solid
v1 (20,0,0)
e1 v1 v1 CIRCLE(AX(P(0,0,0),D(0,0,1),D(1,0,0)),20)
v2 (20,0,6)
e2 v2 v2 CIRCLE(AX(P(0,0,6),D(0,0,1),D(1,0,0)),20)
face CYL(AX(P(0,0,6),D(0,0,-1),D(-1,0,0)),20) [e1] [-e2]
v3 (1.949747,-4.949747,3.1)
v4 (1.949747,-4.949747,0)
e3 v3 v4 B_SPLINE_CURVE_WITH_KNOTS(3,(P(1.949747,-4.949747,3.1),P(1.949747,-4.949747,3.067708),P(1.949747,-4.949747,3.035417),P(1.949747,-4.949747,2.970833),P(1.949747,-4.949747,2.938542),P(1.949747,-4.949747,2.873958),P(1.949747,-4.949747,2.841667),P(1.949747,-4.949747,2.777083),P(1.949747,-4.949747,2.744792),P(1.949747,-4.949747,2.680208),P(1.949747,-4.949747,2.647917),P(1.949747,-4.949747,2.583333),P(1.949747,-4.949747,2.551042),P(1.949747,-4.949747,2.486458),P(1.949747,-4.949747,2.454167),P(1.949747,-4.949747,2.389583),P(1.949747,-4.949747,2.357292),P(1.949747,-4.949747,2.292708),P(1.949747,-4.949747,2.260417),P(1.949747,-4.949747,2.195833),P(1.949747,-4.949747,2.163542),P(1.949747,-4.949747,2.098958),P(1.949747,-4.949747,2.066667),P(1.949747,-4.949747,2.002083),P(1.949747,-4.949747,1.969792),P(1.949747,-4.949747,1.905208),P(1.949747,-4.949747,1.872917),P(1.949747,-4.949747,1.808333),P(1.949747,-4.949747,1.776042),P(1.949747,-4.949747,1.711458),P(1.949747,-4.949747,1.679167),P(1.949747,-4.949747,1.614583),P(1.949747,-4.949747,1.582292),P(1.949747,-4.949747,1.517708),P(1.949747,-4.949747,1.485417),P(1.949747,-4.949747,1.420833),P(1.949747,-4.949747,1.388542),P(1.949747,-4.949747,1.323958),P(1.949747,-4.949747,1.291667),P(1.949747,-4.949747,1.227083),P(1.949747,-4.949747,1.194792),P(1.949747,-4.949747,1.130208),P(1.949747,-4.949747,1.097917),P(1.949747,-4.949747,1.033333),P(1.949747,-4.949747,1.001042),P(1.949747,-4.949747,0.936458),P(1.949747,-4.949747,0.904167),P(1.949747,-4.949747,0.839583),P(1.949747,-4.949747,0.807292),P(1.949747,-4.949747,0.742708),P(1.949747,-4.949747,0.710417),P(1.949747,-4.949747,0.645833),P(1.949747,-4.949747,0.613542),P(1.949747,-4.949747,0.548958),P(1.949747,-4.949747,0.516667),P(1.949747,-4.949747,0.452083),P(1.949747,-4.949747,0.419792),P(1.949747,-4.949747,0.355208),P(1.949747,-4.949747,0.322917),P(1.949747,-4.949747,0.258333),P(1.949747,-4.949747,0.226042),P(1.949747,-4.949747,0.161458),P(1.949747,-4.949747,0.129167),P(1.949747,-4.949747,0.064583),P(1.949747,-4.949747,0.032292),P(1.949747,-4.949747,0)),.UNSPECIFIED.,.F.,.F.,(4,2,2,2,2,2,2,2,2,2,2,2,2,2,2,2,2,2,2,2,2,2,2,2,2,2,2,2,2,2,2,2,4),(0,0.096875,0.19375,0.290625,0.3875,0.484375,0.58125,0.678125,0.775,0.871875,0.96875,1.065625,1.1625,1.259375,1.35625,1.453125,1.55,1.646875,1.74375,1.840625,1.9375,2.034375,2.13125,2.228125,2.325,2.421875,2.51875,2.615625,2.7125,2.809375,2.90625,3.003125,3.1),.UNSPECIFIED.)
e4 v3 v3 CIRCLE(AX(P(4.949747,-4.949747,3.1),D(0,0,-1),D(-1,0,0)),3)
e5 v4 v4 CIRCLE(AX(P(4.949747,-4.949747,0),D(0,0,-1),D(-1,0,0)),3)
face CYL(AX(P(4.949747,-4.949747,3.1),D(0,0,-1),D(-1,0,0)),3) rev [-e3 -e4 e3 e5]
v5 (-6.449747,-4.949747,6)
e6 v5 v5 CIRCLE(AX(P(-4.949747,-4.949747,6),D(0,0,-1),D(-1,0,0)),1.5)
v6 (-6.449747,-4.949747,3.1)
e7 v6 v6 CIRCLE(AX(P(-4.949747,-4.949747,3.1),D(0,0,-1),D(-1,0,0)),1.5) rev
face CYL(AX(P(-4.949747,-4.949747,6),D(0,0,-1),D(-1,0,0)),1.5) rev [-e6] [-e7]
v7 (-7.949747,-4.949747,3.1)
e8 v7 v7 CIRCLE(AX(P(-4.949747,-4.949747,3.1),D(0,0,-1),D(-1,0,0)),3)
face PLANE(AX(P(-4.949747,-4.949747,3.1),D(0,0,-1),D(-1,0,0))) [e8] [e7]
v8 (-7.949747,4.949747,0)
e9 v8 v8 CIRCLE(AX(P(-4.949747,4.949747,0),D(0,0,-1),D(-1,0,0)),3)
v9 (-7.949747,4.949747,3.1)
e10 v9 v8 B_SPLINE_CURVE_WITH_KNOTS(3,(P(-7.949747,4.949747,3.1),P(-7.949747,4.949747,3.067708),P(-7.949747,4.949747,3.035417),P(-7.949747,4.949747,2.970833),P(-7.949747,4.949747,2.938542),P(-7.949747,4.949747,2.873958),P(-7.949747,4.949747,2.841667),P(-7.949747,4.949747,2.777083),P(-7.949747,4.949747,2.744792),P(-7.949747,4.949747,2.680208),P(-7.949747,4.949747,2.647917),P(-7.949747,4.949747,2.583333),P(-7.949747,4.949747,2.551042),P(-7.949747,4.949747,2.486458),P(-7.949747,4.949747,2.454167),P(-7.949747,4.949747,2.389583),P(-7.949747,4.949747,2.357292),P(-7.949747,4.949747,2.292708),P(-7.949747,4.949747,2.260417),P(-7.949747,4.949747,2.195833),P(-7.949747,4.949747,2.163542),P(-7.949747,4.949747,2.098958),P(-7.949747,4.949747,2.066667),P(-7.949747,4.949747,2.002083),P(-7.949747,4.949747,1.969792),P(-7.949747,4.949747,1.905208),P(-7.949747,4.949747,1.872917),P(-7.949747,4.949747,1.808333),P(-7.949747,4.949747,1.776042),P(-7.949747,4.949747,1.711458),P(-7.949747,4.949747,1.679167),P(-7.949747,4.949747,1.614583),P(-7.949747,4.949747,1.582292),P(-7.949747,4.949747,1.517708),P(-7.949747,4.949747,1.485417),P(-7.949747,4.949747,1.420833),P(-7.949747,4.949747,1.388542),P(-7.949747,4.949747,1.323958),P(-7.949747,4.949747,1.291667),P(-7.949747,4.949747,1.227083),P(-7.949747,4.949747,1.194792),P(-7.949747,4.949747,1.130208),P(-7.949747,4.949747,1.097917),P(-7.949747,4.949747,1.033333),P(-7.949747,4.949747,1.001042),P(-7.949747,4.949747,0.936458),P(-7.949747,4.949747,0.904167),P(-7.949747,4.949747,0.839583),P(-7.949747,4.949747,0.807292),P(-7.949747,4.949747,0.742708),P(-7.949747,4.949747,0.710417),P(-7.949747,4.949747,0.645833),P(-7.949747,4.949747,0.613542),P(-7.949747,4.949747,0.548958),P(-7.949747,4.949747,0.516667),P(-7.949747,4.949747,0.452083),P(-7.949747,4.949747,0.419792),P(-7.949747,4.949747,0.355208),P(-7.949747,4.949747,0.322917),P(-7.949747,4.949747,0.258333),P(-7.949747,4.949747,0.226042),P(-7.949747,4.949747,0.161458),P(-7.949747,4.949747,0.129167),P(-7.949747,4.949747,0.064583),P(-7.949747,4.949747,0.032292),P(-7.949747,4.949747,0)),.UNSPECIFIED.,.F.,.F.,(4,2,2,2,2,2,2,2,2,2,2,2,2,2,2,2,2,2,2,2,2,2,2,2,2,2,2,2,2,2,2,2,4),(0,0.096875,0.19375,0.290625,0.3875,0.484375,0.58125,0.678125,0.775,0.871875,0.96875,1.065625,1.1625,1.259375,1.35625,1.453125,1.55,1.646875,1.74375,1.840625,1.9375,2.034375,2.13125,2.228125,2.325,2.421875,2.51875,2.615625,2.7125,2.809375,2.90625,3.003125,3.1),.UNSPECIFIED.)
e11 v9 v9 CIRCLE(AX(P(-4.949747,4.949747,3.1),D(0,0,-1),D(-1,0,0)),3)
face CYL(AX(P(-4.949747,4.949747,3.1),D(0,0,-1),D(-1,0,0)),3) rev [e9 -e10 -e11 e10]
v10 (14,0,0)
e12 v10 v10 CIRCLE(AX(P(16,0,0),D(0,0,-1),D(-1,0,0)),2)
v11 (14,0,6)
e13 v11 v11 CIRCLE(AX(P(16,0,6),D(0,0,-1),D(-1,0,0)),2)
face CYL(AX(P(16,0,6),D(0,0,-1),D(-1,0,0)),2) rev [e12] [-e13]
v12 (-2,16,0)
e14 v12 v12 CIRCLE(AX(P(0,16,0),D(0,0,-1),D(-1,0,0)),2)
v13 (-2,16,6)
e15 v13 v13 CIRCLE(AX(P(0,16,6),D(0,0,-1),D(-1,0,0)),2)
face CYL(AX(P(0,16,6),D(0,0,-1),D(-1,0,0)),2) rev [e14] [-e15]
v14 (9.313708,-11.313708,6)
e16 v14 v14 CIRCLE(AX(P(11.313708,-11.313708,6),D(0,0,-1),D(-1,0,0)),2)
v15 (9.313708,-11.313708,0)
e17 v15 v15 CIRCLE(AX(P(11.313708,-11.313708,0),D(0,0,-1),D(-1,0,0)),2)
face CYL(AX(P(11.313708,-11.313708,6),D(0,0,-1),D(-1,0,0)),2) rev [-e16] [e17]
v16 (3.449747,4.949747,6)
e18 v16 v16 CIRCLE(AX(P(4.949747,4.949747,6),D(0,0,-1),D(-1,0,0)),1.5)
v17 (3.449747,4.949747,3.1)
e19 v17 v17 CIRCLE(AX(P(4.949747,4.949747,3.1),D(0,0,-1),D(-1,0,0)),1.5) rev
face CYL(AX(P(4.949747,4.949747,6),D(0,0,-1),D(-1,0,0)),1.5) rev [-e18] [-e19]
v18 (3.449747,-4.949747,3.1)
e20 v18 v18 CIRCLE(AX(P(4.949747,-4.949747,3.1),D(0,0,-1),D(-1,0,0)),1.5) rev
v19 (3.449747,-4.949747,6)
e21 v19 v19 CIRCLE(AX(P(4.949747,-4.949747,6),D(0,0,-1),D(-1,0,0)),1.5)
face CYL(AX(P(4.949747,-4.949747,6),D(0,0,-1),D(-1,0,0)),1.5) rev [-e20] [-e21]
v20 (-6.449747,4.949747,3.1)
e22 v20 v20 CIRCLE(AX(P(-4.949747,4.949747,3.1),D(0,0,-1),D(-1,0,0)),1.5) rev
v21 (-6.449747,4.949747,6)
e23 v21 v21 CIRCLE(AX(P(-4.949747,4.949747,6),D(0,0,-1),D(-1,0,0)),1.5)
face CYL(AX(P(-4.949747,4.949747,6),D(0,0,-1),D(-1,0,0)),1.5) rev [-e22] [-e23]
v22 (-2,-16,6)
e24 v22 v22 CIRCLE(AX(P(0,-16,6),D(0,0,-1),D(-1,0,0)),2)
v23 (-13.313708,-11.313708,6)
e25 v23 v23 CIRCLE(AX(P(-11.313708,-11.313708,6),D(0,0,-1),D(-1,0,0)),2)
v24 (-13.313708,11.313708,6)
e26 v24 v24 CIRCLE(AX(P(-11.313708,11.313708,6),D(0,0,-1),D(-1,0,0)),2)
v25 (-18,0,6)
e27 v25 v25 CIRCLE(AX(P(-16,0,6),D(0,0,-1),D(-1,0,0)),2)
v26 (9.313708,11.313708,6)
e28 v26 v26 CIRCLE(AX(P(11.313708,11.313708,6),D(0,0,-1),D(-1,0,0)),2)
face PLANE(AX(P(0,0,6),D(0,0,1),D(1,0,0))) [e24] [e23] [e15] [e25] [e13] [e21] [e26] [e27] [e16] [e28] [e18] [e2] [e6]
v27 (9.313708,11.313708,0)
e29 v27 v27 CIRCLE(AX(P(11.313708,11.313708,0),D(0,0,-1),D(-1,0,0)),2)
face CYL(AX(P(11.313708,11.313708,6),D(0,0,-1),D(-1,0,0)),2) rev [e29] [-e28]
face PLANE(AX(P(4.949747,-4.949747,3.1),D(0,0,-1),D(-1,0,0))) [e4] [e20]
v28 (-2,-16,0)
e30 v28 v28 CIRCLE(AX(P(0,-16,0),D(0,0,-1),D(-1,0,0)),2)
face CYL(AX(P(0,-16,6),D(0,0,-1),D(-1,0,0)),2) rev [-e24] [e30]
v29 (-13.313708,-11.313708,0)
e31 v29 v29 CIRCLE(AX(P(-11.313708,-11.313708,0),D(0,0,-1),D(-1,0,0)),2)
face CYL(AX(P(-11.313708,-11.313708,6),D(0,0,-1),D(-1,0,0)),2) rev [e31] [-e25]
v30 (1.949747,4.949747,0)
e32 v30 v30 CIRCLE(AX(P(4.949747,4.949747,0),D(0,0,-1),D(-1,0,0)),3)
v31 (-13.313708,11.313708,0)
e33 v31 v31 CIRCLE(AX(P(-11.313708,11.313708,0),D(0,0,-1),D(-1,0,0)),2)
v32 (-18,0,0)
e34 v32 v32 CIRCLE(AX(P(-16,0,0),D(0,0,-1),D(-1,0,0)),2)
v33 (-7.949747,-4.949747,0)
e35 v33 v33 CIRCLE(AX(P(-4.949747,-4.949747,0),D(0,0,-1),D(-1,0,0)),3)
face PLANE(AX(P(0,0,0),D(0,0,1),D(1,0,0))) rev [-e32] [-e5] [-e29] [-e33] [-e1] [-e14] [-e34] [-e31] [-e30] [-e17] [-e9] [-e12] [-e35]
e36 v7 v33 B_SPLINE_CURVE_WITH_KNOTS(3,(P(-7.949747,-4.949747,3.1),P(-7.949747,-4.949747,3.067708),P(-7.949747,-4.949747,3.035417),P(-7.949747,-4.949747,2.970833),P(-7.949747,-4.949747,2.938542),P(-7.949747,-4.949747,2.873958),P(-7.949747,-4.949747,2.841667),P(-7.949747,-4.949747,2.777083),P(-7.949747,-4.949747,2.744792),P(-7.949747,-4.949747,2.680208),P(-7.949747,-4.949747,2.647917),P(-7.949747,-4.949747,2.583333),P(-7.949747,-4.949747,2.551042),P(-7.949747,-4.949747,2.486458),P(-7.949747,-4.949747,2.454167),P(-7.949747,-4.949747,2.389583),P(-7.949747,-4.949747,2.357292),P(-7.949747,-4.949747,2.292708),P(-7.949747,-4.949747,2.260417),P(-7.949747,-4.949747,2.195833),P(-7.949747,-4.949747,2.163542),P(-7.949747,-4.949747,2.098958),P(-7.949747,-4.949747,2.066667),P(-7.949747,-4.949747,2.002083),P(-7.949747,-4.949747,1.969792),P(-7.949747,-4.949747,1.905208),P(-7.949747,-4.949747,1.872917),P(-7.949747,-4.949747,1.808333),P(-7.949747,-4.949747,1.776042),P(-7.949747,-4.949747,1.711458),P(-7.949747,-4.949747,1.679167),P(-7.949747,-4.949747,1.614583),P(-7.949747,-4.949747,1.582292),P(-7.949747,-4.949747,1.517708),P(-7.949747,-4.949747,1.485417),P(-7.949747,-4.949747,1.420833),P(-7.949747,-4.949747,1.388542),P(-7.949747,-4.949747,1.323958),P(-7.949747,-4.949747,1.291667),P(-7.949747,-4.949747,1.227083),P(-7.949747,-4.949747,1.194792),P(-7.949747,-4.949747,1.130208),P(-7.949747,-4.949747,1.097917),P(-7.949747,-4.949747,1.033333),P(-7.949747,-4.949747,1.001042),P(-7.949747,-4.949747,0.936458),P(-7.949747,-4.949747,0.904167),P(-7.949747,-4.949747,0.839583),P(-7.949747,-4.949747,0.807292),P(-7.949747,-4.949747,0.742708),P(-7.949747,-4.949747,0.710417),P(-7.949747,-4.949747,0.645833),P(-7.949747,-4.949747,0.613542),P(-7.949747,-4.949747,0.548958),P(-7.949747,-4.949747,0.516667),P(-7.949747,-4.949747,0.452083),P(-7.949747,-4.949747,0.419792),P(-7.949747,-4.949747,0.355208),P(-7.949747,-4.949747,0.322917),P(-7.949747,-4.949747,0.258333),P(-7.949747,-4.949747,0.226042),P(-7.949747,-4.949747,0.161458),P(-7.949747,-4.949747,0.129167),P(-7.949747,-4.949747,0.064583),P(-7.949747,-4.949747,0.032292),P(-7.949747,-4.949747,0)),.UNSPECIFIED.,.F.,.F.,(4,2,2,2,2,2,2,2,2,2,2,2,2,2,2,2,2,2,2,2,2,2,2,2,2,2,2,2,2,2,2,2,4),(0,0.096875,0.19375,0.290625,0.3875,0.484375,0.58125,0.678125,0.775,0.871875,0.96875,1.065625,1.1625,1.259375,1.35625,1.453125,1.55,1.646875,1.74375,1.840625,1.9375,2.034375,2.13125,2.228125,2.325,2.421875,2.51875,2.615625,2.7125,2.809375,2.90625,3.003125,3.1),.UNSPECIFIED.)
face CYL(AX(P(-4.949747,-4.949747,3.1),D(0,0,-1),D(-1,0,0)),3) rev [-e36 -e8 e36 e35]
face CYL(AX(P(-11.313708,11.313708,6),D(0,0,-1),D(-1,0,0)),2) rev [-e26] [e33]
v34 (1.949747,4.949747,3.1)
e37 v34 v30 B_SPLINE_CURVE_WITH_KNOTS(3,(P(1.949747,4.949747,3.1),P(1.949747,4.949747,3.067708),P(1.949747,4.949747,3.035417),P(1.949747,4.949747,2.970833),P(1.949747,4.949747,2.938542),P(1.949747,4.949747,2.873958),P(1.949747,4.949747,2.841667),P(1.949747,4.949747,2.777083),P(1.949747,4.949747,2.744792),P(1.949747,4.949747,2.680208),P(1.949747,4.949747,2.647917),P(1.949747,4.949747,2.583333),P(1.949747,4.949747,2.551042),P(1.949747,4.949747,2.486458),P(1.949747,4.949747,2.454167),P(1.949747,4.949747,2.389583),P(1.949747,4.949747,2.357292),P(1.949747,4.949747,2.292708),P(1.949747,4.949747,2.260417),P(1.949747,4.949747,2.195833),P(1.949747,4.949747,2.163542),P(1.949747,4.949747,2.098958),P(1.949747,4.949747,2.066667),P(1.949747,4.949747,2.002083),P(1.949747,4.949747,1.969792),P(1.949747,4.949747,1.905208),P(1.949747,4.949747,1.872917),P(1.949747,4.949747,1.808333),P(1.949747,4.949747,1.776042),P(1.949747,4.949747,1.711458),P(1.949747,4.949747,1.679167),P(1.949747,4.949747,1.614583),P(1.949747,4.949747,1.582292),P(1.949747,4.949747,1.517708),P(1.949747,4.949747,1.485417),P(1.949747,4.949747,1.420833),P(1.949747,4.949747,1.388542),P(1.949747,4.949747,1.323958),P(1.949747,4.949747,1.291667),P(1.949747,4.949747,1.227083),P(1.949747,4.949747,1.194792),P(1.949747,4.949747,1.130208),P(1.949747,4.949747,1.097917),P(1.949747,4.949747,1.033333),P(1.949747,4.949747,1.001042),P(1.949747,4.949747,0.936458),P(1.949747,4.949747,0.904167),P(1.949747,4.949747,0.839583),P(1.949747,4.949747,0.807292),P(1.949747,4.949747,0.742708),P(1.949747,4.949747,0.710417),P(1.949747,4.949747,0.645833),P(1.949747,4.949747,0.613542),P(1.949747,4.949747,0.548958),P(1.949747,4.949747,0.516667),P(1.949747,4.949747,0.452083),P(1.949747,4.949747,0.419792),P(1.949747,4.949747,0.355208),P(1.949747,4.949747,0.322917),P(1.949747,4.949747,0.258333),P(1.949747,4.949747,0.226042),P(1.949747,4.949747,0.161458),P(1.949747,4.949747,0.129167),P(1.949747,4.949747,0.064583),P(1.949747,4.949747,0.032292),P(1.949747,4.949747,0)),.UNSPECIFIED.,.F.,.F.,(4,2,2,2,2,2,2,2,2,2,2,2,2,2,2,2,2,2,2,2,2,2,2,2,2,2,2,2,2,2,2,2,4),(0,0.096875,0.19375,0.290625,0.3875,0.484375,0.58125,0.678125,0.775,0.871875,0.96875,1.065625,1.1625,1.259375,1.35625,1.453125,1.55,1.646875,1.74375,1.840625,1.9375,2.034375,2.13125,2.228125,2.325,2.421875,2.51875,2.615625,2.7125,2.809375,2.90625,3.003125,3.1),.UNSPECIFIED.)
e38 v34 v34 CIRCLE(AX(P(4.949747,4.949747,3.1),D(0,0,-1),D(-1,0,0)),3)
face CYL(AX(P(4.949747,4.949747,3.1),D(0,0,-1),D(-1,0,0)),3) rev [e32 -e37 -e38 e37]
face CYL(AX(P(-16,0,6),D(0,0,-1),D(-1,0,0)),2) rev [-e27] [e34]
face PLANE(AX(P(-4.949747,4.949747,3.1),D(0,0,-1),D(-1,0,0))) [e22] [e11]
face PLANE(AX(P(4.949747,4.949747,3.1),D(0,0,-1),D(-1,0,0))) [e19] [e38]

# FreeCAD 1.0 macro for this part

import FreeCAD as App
import Part
import Sketcher
Q = App.Units.Quantity

doc = App.newDocument("Part")
params = doc.addObject("Spreadsheet::Sheet", "Params")
for row, (alias, value) in enumerate([
    ("sketch1_diameter", "40 mm"),
    ("pad1_length", "6 mm"),
    ("sketch2_diameter", "4 mm"),
    ("sketch2_diameter2", "3 mm"),
    ("pocket1_length", "6 mm"),
    ("sketch3_diameter", "6 mm"),
    ("pocket2_length", "3.1 mm"),
], start=1):
    params.set(f"A{row}", alias)
    params.set(f"B{row}", "=" + value)
    params.setAlias(f"B{row}", alias)

body = doc.addObject("PartDesign::Body", "Body")

# Sketch on XY plane
sketch1 = body.newObject("Sketcher::SketchObject", "Sketch")
sketch1.AttachmentSupport = (doc.getObject("XY_Plane"), [""])
sketch1.MapMode = "FlatFace"
sketch1.addGeometry(Part.Circle(App.Vector(0, 0, 0), App.Vector(0, 0, 1), 20), False)
sketch1.addConstraint([
    Sketcher.Constraint("Coincident", 0, 3, -1, 1),
    Sketcher.Constraint("Diameter", 0, Q("40 mm")),
])
sketch1.setExpression("Constraints[1]", "Params.sketch1_diameter")
pad1 = body.newObject("PartDesign::Pad", "Pad")
pad1.Profile = sketch1
pad1.setExpression("Length", "Params.pad1_length")

# Sketch on XY plane
sketch2 = body.newObject("Sketcher::SketchObject", "Sketch001")
sketch2.AttachmentSupport = (doc.getObject("XY_Plane"), [""])
sketch2.MapMode = "FlatFace"
sketch2.addGeometry([
    Part.Circle(App.Vector(0, 16, 0), App.Vector(0, 0, 1), 2),  # 0
    Part.Circle(App.Vector(-11.3, 11.3, 0), App.Vector(0, 0, 1), 2),  # 1
    Part.Circle(App.Vector(-16, 0, 0), App.Vector(0, 0, 1), 2),  # 2
    Part.Circle(App.Vector(-11.3, -11.3, 0), App.Vector(0, 0, 1), 2),  # 3
    Part.Circle(App.Vector(0, -16, 0), App.Vector(0, 0, 1), 2),  # 4
    Part.Circle(App.Vector(11.3, -11.3, 0), App.Vector(0, 0, 1), 2),  # 5
    Part.Circle(App.Vector(16, 0, 0), App.Vector(0, 0, 1), 2),  # 6
    Part.Circle(App.Vector(11.3, 11.3, 0), App.Vector(0, 0, 1), 2),  # 7
    Part.Circle(App.Vector(4.9, -4.9, 0), App.Vector(0, 0, 1), 1.5),  # 8
    Part.Circle(App.Vector(4.9, 4.9, 0), App.Vector(0, 0, 1), 1.5),  # 9
    Part.Circle(App.Vector(-4.9, 4.9, 0), App.Vector(0, 0, 1), 1.5),  # 10
    Part.Circle(App.Vector(-4.9, -4.9, 0), App.Vector(0, 0, 1), 1.5),  # 11
], False)
sketch2.addConstraint([
    Sketcher.Constraint("Equal", 0, 1),
    Sketcher.Constraint("Equal", 1, 2),
    Sketcher.Constraint("Equal", 2, 3),
    Sketcher.Constraint("Equal", 3, 4),
    Sketcher.Constraint("Equal", 4, 5),
    Sketcher.Constraint("Equal", 5, 6),
    Sketcher.Constraint("Equal", 6, 7),
    Sketcher.Constraint("Equal", 8, 9),
    Sketcher.Constraint("Equal", 9, 10),
    Sketcher.Constraint("Equal", 10, 11),
    Sketcher.Constraint("Symmetric", 0, 3, 4, 3, -1, 1),
    Sketcher.Constraint("Symmetric", 1, 3, 5, 3, -1, 1),
    Sketcher.Constraint("Symmetric", 2, 3, 6, 3, -1, 1),
    Sketcher.Constraint("Symmetric", 3, 3, 7, 3, -1, 1),
    Sketcher.Constraint("Symmetric", 8, 3, 10, 3, -1, 1),
    Sketcher.Constraint("Symmetric", 9, 3, 11, 3, -1, 1),
    Sketcher.Constraint("Symmetric", 3, 3, 5, 3, -2),
    Sketcher.Constraint("Symmetric", 9, 3, 10, 3, -2),
    Sketcher.Constraint("PointOnObject", 0, 3, -2),
    Sketcher.Constraint("PointOnObject", 2, 3, -1),
    Sketcher.Constraint("Diameter", 0, Q("4 mm")),
    Sketcher.Constraint("Diameter", 8, Q("3 mm")),
    Sketcher.Constraint("DistanceY", -1, 1, 0, 3, Q("16 mm")),
    Sketcher.Constraint("DistanceX", 2, 3, -1, 1, Q("16 mm")),
    Sketcher.Constraint("DistanceX", 1, 3, -1, 1, Q("11.313708 mm")),
    Sketcher.Constraint("DistanceY", -1, 1, 1, 3, Q("11.313708 mm")),
    Sketcher.Constraint("DistanceX", 8, 3, 5, 3, Q("6.363961 mm")),
    Sketcher.Constraint("DistanceY", 5, 3, 8, 3, Q("6.363961 mm")),
])
sketch2.setExpression("Constraints[20]", "Params.sketch2_diameter")
sketch2.setExpression("Constraints[21]", "Params.sketch2_diameter2")
pocket1 = body.newObject("PartDesign::Pocket", "Pocket")
pocket1.Profile = sketch2
pocket1.setExpression("Length", "Params.pocket1_length")
pocket1.Reversed = True

# Sketch on XY plane
sketch3 = body.newObject("Sketcher::SketchObject", "Sketch002")
sketch3.AttachmentSupport = (doc.getObject("XY_Plane"), [""])
sketch3.MapMode = "FlatFace"
sketch3.addGeometry([
    Part.Circle(App.Vector(4.9, 4.9, 0), App.Vector(0, 0, 1), 3),
    Part.Circle(App.Vector(-4.9, 4.9, 0), App.Vector(0, 0, 1), 3),
    Part.Circle(App.Vector(-4.9, -4.9, 0), App.Vector(0, 0, 1), 3),
    Part.Circle(App.Vector(4.9, -4.9, 0), App.Vector(0, 0, 1), 3),
], False)
sketch3.addConstraint([
    Sketcher.Constraint("Equal", 0, 1),
    Sketcher.Constraint("Equal", 1, 2),
    Sketcher.Constraint("Equal", 2, 3),
    Sketcher.Constraint("Symmetric", 0, 3, 2, 3, -1, 1),
    Sketcher.Constraint("Symmetric", 1, 3, 3, 3, -1, 1),
    Sketcher.Constraint("Symmetric", 0, 3, 1, 3, -2),
    Sketcher.Constraint("Diameter", 0, Q("6 mm")),
    Sketcher.Constraint("DistanceX", -1, 1, 0, 3, Q("4.949747 mm")),
    Sketcher.Constraint("DistanceY", -1, 1, 0, 3, Q("4.949747 mm")),
])
sketch3.setExpression("Constraints[6]", "Params.sketch3_diameter")
pocket2 = body.newObject("PartDesign::Pocket", "Pocket001")
pocket2.Profile = sketch3
pocket2.setExpression("Length", "Params.pocket2_length")
pocket2.Reversed = True

doc.recompute()
